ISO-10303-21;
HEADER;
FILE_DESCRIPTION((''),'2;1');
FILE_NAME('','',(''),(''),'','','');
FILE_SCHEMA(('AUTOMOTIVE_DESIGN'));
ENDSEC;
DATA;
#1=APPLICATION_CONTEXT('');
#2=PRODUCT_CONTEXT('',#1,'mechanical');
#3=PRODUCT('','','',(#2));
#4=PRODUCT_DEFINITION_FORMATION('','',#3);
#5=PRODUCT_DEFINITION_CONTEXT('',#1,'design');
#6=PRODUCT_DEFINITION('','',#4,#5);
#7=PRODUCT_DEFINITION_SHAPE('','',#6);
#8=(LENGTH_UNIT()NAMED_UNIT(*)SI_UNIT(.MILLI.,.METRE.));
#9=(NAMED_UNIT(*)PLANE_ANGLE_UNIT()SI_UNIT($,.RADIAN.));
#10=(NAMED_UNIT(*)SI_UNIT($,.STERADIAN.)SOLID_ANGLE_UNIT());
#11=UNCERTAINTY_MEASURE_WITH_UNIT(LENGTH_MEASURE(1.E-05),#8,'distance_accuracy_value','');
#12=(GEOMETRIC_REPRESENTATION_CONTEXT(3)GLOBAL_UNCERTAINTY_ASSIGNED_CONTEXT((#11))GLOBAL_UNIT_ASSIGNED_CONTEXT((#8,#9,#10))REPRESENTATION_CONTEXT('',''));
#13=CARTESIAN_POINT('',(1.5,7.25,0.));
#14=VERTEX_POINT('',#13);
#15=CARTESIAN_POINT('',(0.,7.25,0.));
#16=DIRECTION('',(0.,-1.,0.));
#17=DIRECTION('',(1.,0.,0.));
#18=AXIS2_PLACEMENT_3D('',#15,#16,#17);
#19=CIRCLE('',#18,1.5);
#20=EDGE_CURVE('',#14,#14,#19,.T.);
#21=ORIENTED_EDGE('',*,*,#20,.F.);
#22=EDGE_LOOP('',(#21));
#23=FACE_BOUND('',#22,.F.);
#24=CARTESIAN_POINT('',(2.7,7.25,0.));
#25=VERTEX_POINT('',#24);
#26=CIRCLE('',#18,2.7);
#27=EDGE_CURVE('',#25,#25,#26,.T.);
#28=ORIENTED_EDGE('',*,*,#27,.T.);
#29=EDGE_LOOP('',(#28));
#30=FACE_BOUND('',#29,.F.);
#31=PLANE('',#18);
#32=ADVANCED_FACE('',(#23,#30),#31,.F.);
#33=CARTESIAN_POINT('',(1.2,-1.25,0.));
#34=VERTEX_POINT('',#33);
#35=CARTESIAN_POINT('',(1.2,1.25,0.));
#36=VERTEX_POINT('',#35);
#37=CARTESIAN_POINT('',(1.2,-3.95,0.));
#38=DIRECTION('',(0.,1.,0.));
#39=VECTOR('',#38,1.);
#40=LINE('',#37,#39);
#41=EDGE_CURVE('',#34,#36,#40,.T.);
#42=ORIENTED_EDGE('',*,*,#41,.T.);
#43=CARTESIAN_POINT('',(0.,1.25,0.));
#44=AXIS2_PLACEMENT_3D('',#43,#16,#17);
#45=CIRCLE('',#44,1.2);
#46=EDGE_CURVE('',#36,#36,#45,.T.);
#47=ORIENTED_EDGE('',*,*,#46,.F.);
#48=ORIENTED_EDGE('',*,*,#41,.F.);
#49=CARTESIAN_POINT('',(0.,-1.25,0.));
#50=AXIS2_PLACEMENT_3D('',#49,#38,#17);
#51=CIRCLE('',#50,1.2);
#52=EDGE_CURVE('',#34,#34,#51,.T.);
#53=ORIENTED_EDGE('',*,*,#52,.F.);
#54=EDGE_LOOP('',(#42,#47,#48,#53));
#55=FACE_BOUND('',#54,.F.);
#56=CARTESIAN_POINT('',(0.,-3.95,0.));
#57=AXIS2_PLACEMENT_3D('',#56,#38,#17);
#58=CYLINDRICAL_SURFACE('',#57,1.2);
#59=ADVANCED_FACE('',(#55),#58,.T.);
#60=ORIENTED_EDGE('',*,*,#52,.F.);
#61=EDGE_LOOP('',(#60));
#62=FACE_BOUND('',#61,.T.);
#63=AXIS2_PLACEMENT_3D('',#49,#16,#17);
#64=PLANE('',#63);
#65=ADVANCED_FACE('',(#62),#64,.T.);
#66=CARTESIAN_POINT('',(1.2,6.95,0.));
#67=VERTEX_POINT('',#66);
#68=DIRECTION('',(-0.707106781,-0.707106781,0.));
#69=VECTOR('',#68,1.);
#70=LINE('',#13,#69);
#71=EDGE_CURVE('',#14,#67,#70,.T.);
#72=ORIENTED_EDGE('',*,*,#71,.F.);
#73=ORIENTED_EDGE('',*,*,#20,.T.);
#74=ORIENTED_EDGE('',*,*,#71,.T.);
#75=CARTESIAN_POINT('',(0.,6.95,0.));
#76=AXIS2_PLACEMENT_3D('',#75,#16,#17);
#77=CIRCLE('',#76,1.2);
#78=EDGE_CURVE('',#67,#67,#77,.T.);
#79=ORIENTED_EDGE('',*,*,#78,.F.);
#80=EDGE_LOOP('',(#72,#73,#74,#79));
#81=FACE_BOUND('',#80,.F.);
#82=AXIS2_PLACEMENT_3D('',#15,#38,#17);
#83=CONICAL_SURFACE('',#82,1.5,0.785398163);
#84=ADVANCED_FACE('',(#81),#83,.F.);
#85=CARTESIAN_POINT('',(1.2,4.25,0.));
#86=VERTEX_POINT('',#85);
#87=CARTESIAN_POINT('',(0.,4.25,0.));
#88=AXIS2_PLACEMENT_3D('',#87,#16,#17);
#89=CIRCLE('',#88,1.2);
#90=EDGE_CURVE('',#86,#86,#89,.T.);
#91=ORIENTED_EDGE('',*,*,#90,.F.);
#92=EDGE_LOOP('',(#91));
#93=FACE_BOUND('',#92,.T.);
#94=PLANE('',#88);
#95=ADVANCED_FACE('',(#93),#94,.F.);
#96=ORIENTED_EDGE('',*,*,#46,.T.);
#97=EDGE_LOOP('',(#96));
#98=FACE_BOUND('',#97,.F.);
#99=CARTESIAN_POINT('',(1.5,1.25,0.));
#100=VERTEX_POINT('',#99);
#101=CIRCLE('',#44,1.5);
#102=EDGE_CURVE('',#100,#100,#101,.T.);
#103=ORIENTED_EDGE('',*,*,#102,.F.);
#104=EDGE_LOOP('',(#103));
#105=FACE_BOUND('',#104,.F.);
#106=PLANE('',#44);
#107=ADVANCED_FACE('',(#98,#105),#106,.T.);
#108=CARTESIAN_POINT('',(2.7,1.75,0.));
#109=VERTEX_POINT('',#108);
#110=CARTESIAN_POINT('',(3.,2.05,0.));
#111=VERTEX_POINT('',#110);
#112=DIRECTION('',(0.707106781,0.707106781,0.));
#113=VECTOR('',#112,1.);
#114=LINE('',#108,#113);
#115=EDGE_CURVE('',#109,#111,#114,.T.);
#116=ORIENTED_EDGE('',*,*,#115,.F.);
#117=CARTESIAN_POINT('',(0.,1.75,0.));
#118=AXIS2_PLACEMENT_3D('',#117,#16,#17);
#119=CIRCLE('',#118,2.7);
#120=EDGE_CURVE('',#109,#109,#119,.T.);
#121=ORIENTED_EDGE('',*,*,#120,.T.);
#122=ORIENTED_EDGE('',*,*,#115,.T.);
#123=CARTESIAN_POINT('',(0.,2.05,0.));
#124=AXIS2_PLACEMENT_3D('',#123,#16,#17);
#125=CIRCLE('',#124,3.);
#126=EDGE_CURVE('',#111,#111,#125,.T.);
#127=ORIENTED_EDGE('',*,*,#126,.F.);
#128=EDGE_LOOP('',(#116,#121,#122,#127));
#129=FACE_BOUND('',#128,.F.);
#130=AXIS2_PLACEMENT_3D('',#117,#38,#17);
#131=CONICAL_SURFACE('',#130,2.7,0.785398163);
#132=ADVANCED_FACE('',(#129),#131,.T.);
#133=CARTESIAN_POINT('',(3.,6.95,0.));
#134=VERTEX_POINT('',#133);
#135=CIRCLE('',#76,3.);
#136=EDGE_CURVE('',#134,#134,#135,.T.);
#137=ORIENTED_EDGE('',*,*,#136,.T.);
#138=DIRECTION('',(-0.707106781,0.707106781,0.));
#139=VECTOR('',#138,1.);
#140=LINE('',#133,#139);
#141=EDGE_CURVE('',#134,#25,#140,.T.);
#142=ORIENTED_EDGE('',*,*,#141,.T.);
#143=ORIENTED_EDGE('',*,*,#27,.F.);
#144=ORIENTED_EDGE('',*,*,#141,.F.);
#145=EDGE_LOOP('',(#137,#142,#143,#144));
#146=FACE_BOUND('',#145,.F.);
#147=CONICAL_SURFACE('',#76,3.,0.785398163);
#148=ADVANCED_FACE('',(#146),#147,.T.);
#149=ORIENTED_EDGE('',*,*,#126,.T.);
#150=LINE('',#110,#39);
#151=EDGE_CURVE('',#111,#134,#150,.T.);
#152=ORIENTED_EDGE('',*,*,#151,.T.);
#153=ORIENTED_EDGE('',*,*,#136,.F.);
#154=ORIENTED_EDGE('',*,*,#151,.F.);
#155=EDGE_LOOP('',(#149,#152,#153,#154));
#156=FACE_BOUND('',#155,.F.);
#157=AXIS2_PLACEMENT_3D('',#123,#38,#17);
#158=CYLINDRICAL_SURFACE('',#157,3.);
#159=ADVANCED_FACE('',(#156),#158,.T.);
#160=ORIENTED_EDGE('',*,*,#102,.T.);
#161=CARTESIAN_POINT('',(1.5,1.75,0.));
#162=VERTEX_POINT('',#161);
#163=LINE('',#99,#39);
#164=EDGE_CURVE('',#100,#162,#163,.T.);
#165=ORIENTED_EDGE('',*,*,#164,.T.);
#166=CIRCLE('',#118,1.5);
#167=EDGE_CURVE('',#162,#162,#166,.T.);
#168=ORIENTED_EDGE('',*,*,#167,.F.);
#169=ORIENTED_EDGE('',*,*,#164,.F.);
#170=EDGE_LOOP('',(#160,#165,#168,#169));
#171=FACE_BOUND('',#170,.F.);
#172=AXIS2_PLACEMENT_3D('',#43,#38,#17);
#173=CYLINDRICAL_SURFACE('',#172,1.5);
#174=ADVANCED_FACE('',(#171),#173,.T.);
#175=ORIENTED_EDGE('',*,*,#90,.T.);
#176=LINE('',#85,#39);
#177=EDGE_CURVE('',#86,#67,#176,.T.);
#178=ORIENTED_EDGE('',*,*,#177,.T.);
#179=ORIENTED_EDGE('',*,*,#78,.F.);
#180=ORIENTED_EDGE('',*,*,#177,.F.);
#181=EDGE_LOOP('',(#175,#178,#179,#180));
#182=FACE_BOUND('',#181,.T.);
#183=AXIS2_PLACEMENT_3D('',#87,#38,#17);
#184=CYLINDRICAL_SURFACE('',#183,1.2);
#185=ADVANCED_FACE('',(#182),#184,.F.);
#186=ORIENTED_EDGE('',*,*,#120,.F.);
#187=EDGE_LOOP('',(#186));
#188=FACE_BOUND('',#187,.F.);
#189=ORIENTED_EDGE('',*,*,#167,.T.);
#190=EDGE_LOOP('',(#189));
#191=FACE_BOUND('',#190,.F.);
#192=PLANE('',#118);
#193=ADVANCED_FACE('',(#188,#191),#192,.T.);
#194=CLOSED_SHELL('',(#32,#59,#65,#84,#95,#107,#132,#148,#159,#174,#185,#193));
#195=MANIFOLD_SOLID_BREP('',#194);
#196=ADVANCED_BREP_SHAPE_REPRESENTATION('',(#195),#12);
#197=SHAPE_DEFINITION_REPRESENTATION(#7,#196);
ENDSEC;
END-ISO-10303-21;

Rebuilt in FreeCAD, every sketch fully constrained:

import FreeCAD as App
import Part
import Sketcher
from FreeCAD import Vector
Q = App.Units.Quantity


def add_polygon(sketch, points):
    """Adds a closed chain of lines whose ends are joined by coincident constraints."""
    first, n = sketch.GeometryCount, len(points)
    for a, b in zip(points, points[1:] + points[:1]):
        sketch.addGeometry(Part.LineSegment(App.Vector(*a, 0), App.Vector(*b, 0)), False)
    for i in range(n):
        sketch.addConstraint(Sketcher.Constraint("Coincident", first + i, 2, first + (i + 1) % n, 1))

doc = App.newDocument("Part")
params = doc.addObject("Spreadsheet::Sheet", "Params")
for row, (alias, value) in enumerate([
    ("sketch1_width", "0.3 mm"),
    ("sketch1_height", "0.5 mm"),
    ("revolution_angle", "360 deg"),
    ("pocket1_length", "3 mm"),
], start=1):
    params.set(f"A{row}", alias)
    params.set(f"B{row}", "=" + value)
    params.setAlias(f"B{row}", alias)

body = doc.addObject("PartDesign::Body", "Body")

sketch1 = doc.addObject("Sketcher::SketchObject", "Sketch")
body.addObject(sketch1)
sketch1.AttachmentSupport = (doc.XY_Plane, [""])
sketch1.MapMode = "FlatFace"
add_polygon(sketch1, [(0, 4.25), (0, -4.25), (0.9, -4.25), (1.2, -3.95), (1.2, 1.25), (1.5, 1.25), (1.5, 1.75), (2.7, 1.75), (3, 2.05), (3, 6.95), (2.7, 7.25), (1.5, 7.25), (1.2, 6.95), (1.2, 4.25)])
sketch1.addConstraint(Sketcher.Constraint("Vertical", 0))
sketch1.addConstraint(Sketcher.Constraint("Horizontal", 1))
sketch1.addConstraint(Sketcher.Constraint("Vertical", 3))
sketch1.addConstraint(Sketcher.Constraint("Horizontal", 4))
sketch1.addConstraint(Sketcher.Constraint("Vertical", 5))
sketch1.addConstraint(Sketcher.Constraint("Horizontal", 6))
sketch1.addConstraint(Sketcher.Constraint("Vertical", 8))
sketch1.addConstraint(Sketcher.Constraint("Horizontal", 10))
sketch1.addConstraint(Sketcher.Constraint("Vertical", 12))
sketch1.addConstraint(Sketcher.Constraint("Horizontal", 13))
sketch1.addConstraint(Sketcher.Constraint("Symmetric", 0, 2, 13, 2, -1, 1))
sketch1.addConstraint(Sketcher.Constraint("Parallel", 2, 7))
sketch1.addConstraint(Sketcher.Constraint("Perpendicular", 7, 9))
sketch1.addConstraint(Sketcher.Constraint("Perpendicular", 9, 11))
sketch1.addConstraint(Sketcher.Constraint("Horizontal", 8, 2, 11, 2))
sketch1.addConstraint(Sketcher.Constraint("Vertical", 6, 2, 9, 2))
sketch1.addConstraint(Sketcher.Constraint("Vertical", 5, 2, 10, 2))
sketch1.addConstraint(Sketcher.Constraint("Vertical", 3, 2, 11, 2))
sketch1.addConstraint(Sketcher.Constraint("Equal", 10, 13))
sketch1.addConstraint(Sketcher.Constraint("Equal", 2, 7))
sketch1.addConstraint(Sketcher.Constraint("Equal", 7, 9))
sketch1.addConstraint(Sketcher.Constraint("DistanceX", 4, 1, 4, 2, Q("0.3 mm")))
sketch1.addConstraint(Sketcher.Constraint("DistanceY", 5, 1, 5, 2, Q("0.5 mm")))
sketch1.addConstraint(Sketcher.Constraint("DistanceX", -1, 1, 7, 2, Q("3 mm")))
sketch1.addConstraint(Sketcher.Constraint("DistanceY", 1, 2, 5, 2, Q("6 mm")))
sketch1.addConstraint(Sketcher.Constraint("DistanceY", 4, 2, 9, 2, Q("6 mm")))
sketch1.addConstraint(Sketcher.Constraint("DistanceY", 3, 2, 12, 2, Q("3 mm")))
sketch1.setExpression("Constraints[35]", "Params.sketch1_width")
sketch1.setExpression("Constraints[36]", "Params.sketch1_height")
revolution = doc.addObject("PartDesign::Revolution", "Revolution")
body.addObject(revolution)
revolution.Profile = sketch1
revolution.ReferenceAxis = (sketch1, ["V_Axis"])
revolution.setExpression("Angle", "Params.revolution_angle")

sketch2 = doc.addObject("Sketcher::SketchObject", "Sketch001")
body.addObject(sketch2)
sketch2.AttachmentSupport = (doc.XZ_Plane, [""])
sketch2.MapMode = "FlatFace"
sketch2.AttachmentOffset = App.Placement(Vector(0, 0, 4.25), App.Rotation())
sketch2.addGeometry(Part.Circle(Vector(0, 0, 0), Vector(0, 0, 1), 4.1), False)
sketch2.addConstraint(Sketcher.Constraint("Coincident", 0, 3, -1, 1))
sketch2.addConstraint(Sketcher.Constraint("Diameter", 0, Q("8.2852 mm")))
pocket1 = doc.addObject("PartDesign::Pocket", "Pocket")
body.addObject(pocket1)
pocket1.Profile = sketch2
pocket1.setExpression("Length", "Params.pocket1_length")

doc.recompute()
